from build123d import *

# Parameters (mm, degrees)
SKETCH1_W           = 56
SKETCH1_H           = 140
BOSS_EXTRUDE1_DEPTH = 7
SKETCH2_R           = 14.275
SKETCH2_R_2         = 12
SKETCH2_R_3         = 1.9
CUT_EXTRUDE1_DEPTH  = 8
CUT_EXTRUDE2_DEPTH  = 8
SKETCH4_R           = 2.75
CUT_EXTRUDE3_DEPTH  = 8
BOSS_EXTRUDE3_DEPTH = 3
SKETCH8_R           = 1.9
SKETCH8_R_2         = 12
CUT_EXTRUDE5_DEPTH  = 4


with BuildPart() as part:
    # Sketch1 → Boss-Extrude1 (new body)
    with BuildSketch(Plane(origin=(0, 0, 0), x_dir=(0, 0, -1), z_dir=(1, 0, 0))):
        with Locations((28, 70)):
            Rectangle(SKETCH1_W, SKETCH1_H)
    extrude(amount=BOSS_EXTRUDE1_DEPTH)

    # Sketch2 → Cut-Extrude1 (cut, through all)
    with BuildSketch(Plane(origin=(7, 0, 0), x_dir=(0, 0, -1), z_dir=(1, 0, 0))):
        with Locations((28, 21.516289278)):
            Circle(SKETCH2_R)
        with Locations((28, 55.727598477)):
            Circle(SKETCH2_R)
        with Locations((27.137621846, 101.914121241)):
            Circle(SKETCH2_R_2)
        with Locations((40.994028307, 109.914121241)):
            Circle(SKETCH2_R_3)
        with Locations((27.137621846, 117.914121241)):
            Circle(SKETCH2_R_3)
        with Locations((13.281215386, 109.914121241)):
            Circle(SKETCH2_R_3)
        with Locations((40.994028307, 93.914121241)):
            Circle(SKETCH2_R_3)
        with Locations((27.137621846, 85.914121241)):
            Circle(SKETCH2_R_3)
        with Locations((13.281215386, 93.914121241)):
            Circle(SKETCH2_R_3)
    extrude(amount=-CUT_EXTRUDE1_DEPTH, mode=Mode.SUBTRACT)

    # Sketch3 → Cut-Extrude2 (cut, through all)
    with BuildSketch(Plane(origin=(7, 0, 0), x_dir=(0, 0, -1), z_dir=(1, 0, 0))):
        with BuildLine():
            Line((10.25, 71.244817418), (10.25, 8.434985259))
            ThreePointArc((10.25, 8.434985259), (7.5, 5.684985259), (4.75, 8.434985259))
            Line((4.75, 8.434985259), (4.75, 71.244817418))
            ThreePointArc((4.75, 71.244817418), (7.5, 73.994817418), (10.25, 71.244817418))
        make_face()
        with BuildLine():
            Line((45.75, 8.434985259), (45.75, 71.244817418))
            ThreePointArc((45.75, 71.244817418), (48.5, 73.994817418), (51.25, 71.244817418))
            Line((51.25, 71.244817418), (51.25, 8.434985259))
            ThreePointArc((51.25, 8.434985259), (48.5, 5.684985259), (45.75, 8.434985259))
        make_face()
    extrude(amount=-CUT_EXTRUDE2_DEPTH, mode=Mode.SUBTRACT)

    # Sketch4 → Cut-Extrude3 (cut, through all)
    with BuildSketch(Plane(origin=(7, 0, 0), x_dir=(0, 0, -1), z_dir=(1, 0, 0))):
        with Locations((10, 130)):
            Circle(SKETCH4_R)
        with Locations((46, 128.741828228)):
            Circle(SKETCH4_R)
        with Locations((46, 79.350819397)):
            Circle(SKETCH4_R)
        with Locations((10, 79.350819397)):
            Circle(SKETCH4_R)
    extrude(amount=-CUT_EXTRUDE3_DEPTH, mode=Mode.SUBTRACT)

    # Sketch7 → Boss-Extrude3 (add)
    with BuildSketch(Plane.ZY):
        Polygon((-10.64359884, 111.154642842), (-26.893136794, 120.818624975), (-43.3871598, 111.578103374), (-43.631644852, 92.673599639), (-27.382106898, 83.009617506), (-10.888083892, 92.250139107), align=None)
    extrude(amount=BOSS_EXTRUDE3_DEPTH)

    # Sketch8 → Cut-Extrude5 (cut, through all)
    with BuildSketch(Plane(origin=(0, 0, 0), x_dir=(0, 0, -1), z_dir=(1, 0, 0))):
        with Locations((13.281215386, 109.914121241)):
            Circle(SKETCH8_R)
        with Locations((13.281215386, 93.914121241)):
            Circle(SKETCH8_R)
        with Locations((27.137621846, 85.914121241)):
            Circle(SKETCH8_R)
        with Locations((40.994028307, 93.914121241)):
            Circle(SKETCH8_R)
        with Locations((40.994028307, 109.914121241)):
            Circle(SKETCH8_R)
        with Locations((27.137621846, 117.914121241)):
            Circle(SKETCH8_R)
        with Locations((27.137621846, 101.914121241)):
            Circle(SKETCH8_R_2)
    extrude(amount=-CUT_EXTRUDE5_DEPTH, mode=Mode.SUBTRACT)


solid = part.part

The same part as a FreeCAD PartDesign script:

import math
import FreeCAD as App
import Part
import Sketcher
from FreeCAD import Vector
Q = App.Units.Quantity

doc = App.newDocument("Part")
params = doc.addObject("Spreadsheet::Sheet", "Params")
for row, (alias, value) in enumerate([
    ("sketch1_width", "140 mm"),
    ("sketch1_height", "56 mm"),
    ("pad1_length", "7 mm"),
    ("sketch2_diameter", "24 mm"),
    ("sketch2_diameter2", "3.8 mm"),
    ("sketch2_diameter3", "28.55 mm"),
    ("sketch3_radius", "2.75 mm"),
    ("sketch4_diameter", "5.5 mm"),
    ("pad2_length", "3 mm"),
    ("sketch6_diameter", "24 mm"),
    ("sketch6_diameter2", "3.8 mm"),
], start=1):
    params.set(f"A{row}", alias)
    params.set(f"B{row}", "=" + value)
    params.setAlias(f"B{row}", alias)

body = doc.addObject("PartDesign::Body", "Body")

sketch1 = body.newObject("Sketcher::SketchObject", "Sketch")
sketch1.AttachmentSupport = (doc.getObject("YZ_Plane"), [""])
sketch1.MapMode = "FlatFace"
sketch1.addGeometry(Part.LineSegment(Vector(140, 0, 0), Vector(0, 0, 0)), False)
sketch1.addGeometry(Part.LineSegment(Vector(0, 0, 0), Vector(0, -56, 0)), False)
sketch1.addGeometry(Part.LineSegment(Vector(0, -56, 0), Vector(140, -56, 0)), False)
sketch1.addGeometry(Part.LineSegment(Vector(140, -56, 0), Vector(140, 0, 0)), False)
sketch1.addConstraint(Sketcher.Constraint("Coincident", 0, 2, 1, 1))
sketch1.addConstraint(Sketcher.Constraint("Coincident", 1, 2, 2, 1))
sketch1.addConstraint(Sketcher.Constraint("Coincident", 2, 2, 3, 1))
sketch1.addConstraint(Sketcher.Constraint("Coincident", 3, 2, 0, 1))
sketch1.addConstraint(Sketcher.Constraint("Horizontal", 0))
sketch1.addConstraint(Sketcher.Constraint("Vertical", 1))
sketch1.addConstraint(Sketcher.Constraint("Horizontal", 2))
sketch1.addConstraint(Sketcher.Constraint("Vertical", 3))
sketch1.addConstraint(Sketcher.Constraint("Coincident", 0, 2, -1, 1))
sketch1.addConstraint(Sketcher.Constraint("DistanceX", 0, 2, 0, 1, Q("140 mm")))
sketch1.addConstraint(Sketcher.Constraint("DistanceY", 1, 2, 1, 1, Q("56 mm")))
sketch1.setExpression("Constraints[9]", "Params.sketch1_width")
sketch1.setExpression("Constraints[10]", "Params.sketch1_height")
pad1 = body.newObject("PartDesign::Pad", "Pad")
pad1.Profile = sketch1
pad1.setExpression("Length", "Params.pad1_length")

sketch2 = body.newObject("Sketcher::SketchObject", "Sketch001")
sketch2.AttachmentSupport = (doc.getObject("YZ_Plane"), [""])
sketch2.MapMode = "FlatFace"
sketch2.AttachmentOffset = App.Placement(Vector(0, 0, 7), App.Rotation())
sketch2.addGeometry(Part.Circle(Vector(21.5, -28, 0), Vector(0, 0, 1), 14.3), False)
sketch2.addGeometry(Part.Circle(Vector(55.7, -28, 0), Vector(0, 0, 1), 14.3), False)
sketch2.addGeometry(Part.Circle(Vector(101.9, -27.1, 0), Vector(0, 0, 1), 12), False)
sketch2.addGeometry(Part.Circle(Vector(109.9, -41, 0), Vector(0, 0, 1), 1.9), False)
sketch2.addGeometry(Part.Circle(Vector(117.9, -27.1, 0), Vector(0, 0, 1), 1.9), False)
sketch2.addGeometry(Part.Circle(Vector(109.9, -13.3, 0), Vector(0, 0, 1), 1.9), False)
sketch2.addGeometry(Part.Circle(Vector(93.9, -41, 0), Vector(0, 0, 1), 1.9), False)
sketch2.addGeometry(Part.Circle(Vector(85.9, -27.1, 0), Vector(0, 0, 1), 1.9), False)
sketch2.addGeometry(Part.Circle(Vector(93.9, -13.3, 0), Vector(0, 0, 1), 1.9), False)
sketch2.addConstraint(Sketcher.Constraint("Equal", 0, 1))
sketch2.addConstraint(Sketcher.Constraint("Equal", 3, 4))
sketch2.addConstraint(Sketcher.Constraint("Equal", 4, 5))
sketch2.addConstraint(Sketcher.Constraint("Equal", 5, 6))
sketch2.addConstraint(Sketcher.Constraint("Equal", 6, 7))
sketch2.addConstraint(Sketcher.Constraint("Equal", 7, 8))
sketch2.addConstraint(Sketcher.Constraint("Horizontal", 0, 3, 1, 3))
sketch2.addConstraint(Sketcher.Constraint("Horizontal", 2, 3, 4, 3))
sketch2.addConstraint(Sketcher.Constraint("Horizontal", 3, 3, 6, 3))
sketch2.addConstraint(Sketcher.Constraint("Horizontal", 4, 3, 7, 3))
sketch2.addConstraint(Sketcher.Constraint("Horizontal", 5, 3, 8, 3))
sketch2.addConstraint(Sketcher.Constraint("Vertical", 3, 3, 5, 3))
sketch2.addConstraint(Sketcher.Constraint("Vertical", 6, 3, 8, 3))
sketch2.addConstraint(Sketcher.Constraint("Diameter", 2, Q("24 mm")))
sketch2.addConstraint(Sketcher.Constraint("Diameter", 3, Q("3.8 mm")))
sketch2.addConstraint(Sketcher.Constraint("Diameter", 0, Q("28.55 mm")))
sketch2.addConstraint(Sketcher.Constraint("DistanceY", 0, 3, -1, 1, Q("28 mm")))
sketch2.addConstraint(Sketcher.Constraint("DistanceX", 2, 3, 3, 3, Q("8 mm")))
sketch2.addConstraint(Sketcher.Constraint("DistanceX", 2, 3, 4, 3, Q("16 mm")))
sketch2.addConstraint(Sketcher.Constraint("DistanceX", 6, 3, 3, 3, Q("16 mm")))
sketch2.addConstraint(Sketcher.Constraint("DistanceX", 7, 3, 2, 3, Q("16 mm")))
sketch2.addConstraint(Sketcher.Constraint("DistanceX", -1, 1, 1, 3, Q("55.727598 mm")))
sketch2.addConstraint(Sketcher.Constraint("DistanceX", -1, 1, 0, 3, Q("21.516289 mm")))
sketch2.addConstraint(Sketcher.Constraint("DistanceX", -1, 1, 2, 3, Q("101.914121 mm")))
sketch2.addConstraint(Sketcher.Constraint("DistanceY", 2, 3, -1, 1, Q("27.137622 mm")))
sketch2.addConstraint(Sketcher.Constraint("DistanceY", 3, 3, -1, 1, Q("40.994028 mm")))
sketch2.addConstraint(Sketcher.Constraint("DistanceY", 5, 3, -1, 1, Q("13.281215 mm")))
sketch2.setExpression("Constraints[13]", "Params.sketch2_diameter")
sketch2.setExpression("Constraints[14]", "Params.sketch2_diameter2")
sketch2.setExpression("Constraints[15]", "Params.sketch2_diameter3")
pocket1 = body.newObject("PartDesign::Pocket", "Pocket")
pocket1.Profile = sketch2
pocket1.Type = "ThroughAll"

sketch3 = body.newObject("Sketcher::SketchObject", "Sketch002")
sketch3.AttachmentSupport = (doc.getObject("YZ_Plane"), [""])
sketch3.MapMode = "FlatFace"
sketch3.AttachmentOffset = App.Placement(Vector(0, 0, 7), App.Rotation())
sketch3.addGeometry(Part.LineSegment(Vector(8.4, -10.2, 0), Vector(71.2, -10.2, 0)), False)
sketch3.addGeometry(Part.ArcOfCircle(Part.Circle(Vector(71.2, -7.5, 0), Vector(0, 0, 1), 2.8), math.radians(-90), math.radians(90)), False)
sketch3.addGeometry(Part.LineSegment(Vector(71.2, -4.8, 0), Vector(8.4, -4.8, 0)), False)
sketch3.addGeometry(Part.ArcOfCircle(Part.Circle(Vector(8.4, -7.5, 0), Vector(0, 0, 1), 2.8), math.radians(90), math.radians(270)), False)
sketch3.addGeometry(Part.LineSegment(Vector(71.2, -45.8, 0), Vector(8.4, -45.8, 0)), False)
sketch3.addGeometry(Part.ArcOfCircle(Part.Circle(Vector(8.4, -48.5, 0), Vector(0, 0, 1), 2.8), math.radians(90), math.radians(270)), False)
sketch3.addGeometry(Part.LineSegment(Vector(8.4, -51.2, 0), Vector(71.2, -51.2, 0)), False)
sketch3.addGeometry(Part.ArcOfCircle(Part.Circle(Vector(71.2, -48.5, 0), Vector(0, 0, 1), 2.8), math.radians(-90), math.radians(90)), False)
sketch3.addConstraint(Sketcher.Constraint("Tangent", 0, 2, 1, 1))
sketch3.addConstraint(Sketcher.Constraint("Tangent", 1, 2, 2, 1))
sketch3.addConstraint(Sketcher.Constraint("Tangent", 2, 2, 3, 1))
sketch3.addConstraint(Sketcher.Constraint("Tangent", 3, 2, 0, 1))
sketch3.addConstraint(Sketcher.Constraint("Tangent", 4, 2, 5, 1))
sketch3.addConstraint(Sketcher.Constraint("Tangent", 5, 2, 6, 1))
sketch3.addConstraint(Sketcher.Constraint("Tangent", 6, 2, 7, 1))
sketch3.addConstraint(Sketcher.Constraint("Tangent", 7, 2, 4, 1))
sketch3.addConstraint(Sketcher.Constraint("Horizontal", 0))
sketch3.addConstraint(Sketcher.Constraint("Horizontal", 2))
sketch3.addConstraint(Sketcher.Constraint("Horizontal", 4))
sketch3.addConstraint(Sketcher.Constraint("Horizontal", 6))
sketch3.addConstraint(Sketcher.Constraint("Equal", 3, 5))
sketch3.addConstraint(Sketcher.Constraint("Vertical", 3, 3, 5, 3))
sketch3.addConstraint(Sketcher.Constraint("Vertical", 1, 3, 7, 3))
sketch3.addConstraint(Sketcher.Constraint("Radius", 1, Q("2.75 mm")))
sketch3.addConstraint(Sketcher.Constraint("DistanceY", 5, 3, 3, 3, Q("41 mm")))
sketch3.addConstraint(Sketcher.Constraint("DistanceY", 1, 3, -1, 1, Q("7.5 mm")))
sketch3.addConstraint(Sketcher.Constraint("DistanceX", 0, 1, 0, 2, Q("62.809832 mm")))
sketch3.addConstraint(Sketcher.Constraint("DistanceX", -1, 1, 1, 3, Q("71.244817 mm")))
sketch3.setExpression("Constraints[15]", "Params.sketch3_radius")
pocket2 = body.newObject("PartDesign::Pocket", "Pocket001")
pocket2.Profile = sketch3
pocket2.Type = "ThroughAll"

sketch4 = body.newObject("Sketcher::SketchObject", "Sketch003")
sketch4.AttachmentSupport = (doc.getObject("YZ_Plane"), [""])
sketch4.MapMode = "FlatFace"
sketch4.AttachmentOffset = App.Placement(Vector(0, 0, 7), App.Rotation())
sketch4.addGeometry(Part.Circle(Vector(130, -10, 0), Vector(0, 0, 1), 2.8), False)
sketch4.addGeometry(Part.Circle(Vector(128.7, -46, 0), Vector(0, 0, 1), 2.8), False)
sketch4.addGeometry(Part.Circle(Vector(79.4, -46, 0), Vector(0, 0, 1), 2.8), False)
sketch4.addGeometry(Part.Circle(Vector(79.4, -10, 0), Vector(0, 0, 1), 2.8), False)
sketch4.addConstraint(Sketcher.Constraint("Equal", 0, 1))
sketch4.addConstraint(Sketcher.Constraint("Equal", 1, 2))
sketch4.addConstraint(Sketcher.Constraint("Equal", 2, 3))
sketch4.addConstraint(Sketcher.Constraint("Horizontal", 1, 3, 2, 3))
sketch4.addConstraint(Sketcher.Constraint("Horizontal", 0, 3, 3, 3))
sketch4.addConstraint(Sketcher.Constraint("Vertical", 2, 3, 3, 3))
sketch4.addConstraint(Sketcher.Constraint("Diameter", 0, Q("5.5 mm")))
sketch4.addConstraint(Sketcher.Constraint("DistanceX", -1, 1, 0, 3, Q("130 mm")))
sketch4.addConstraint(Sketcher.Constraint("DistanceY", 0, 3, -1, 1, Q("10 mm")))
sketch4.addConstraint(Sketcher.Constraint("DistanceY", 1, 3, -1, 1, Q("46 mm")))
sketch4.addConstraint(Sketcher.Constraint("DistanceX", -1, 1, 1, 3, Q("128.741828 mm")))
sketch4.addConstraint(Sketcher.Constraint("DistanceX", -1, 1, 2, 3, Q("79.350819 mm")))
sketch4.setExpression("Constraints[6]", "Params.sketch4_diameter")
pocket3 = body.newObject("PartDesign::Pocket", "Pocket002")
pocket3.Profile = sketch4
pocket3.Type = "ThroughAll"

sketch5 = body.newObject("Sketcher::SketchObject", "Sketch004")
sketch5.AttachmentSupport = (doc.getObject("YZ_Plane"), [""])
sketch5.MapMode = "FlatFace"
sketch5.addGeometry(Part.LineSegment(Vector(111, -11, 0), Vector(121, -27, 0)), False)
sketch5.addGeometry(Part.LineSegment(Vector(121, -27, 0), Vector(112, -43, 0)), False)
sketch5.addGeometry(Part.LineSegment(Vector(112, -43, 0), Vector(93, -44, 0)), False)
sketch5.addGeometry(Part.LineSegment(Vector(93, -44, 0), Vector(83, -27, 0)), False)
sketch5.addGeometry(Part.LineSegment(Vector(83, -27, 0), Vector(92, -11, 0)), False)
sketch5.addGeometry(Part.LineSegment(Vector(92, -11, 0), Vector(111, -11, 0)), False)
sketch5.addConstraint(Sketcher.Constraint("Coincident", 0, 2, 1, 1))
sketch5.addConstraint(Sketcher.Constraint("Coincident", 1, 2, 2, 1))
sketch5.addConstraint(Sketcher.Constraint("Coincident", 2, 2, 3, 1))
sketch5.addConstraint(Sketcher.Constraint("Coincident", 3, 2, 4, 1))
sketch5.addConstraint(Sketcher.Constraint("Coincident", 4, 2, 5, 1))
sketch5.addConstraint(Sketcher.Constraint("Coincident", 5, 2, 0, 1))
sketch5.addConstraint(Sketcher.Constraint("Parallel", 0, 3))
sketch5.addConstraint(Sketcher.Constraint("Parallel", 1, 4))
sketch5.addConstraint(Sketcher.Constraint("Parallel", 2, 5))
sketch5.addConstraint(Sketcher.Constraint("Equal", 0, 1))
sketch5.addConstraint(Sketcher.Constraint("Equal", 1, 2))
sketch5.addConstraint(Sketcher.Constraint("Equal", 2, 3))
sketch5.addConstraint(Sketcher.Constraint("DistanceX", -1, 1, 2, 2, Q("92.6736 mm")))
sketch5.addConstraint(Sketcher.Constraint("DistanceY", 5, 2, -1, 1, Q("10.643599 mm")))
sketch5.addConstraint(Sketcher.Constraint("DistanceY", 1, 2, -1, 1, Q("43.38716 mm")))
sketch5.addConstraint(Sketcher.Constraint("DistanceX", -1, 1, 4, 2, Q("92.250139 mm")))
sketch5.addConstraint(Sketcher.Constraint("DistanceX", 1, 2, 0, 2, Q("9.240522 mm")))
sketch5.addConstraint(Sketcher.Constraint("DistanceY", 2, 2, 0, 2, Q("16.738508 mm")))
pad2 = body.newObject("PartDesign::Pad", "Pad001")
pad2.Profile = sketch5
pad2.setExpression("Length", "Params.pad2_length")
pad2.Reversed = True

sketch6 = body.newObject("Sketcher::SketchObject", "Sketch005")
sketch6.AttachmentSupport = (doc.getObject("YZ_Plane"), [""])
sketch6.MapMode = "FlatFace"
sketch6.addGeometry(Part.Circle(Vector(109.9, -13.3, 0), Vector(0, 0, 1), 1.9), False)
sketch6.addGeometry(Part.Circle(Vector(93.9, -13.3, 0), Vector(0, 0, 1), 1.9), False)
sketch6.addGeometry(Part.Circle(Vector(85.9, -27.1, 0), Vector(0, 0, 1), 1.9), False)
sketch6.addGeometry(Part.Circle(Vector(93.9, -41, 0), Vector(0, 0, 1), 1.9), False)
sketch6.addGeometry(Part.Circle(Vector(109.9, -41, 0), Vector(0, 0, 1), 1.9), False)
sketch6.addGeometry(Part.Circle(Vector(117.9, -27.1, 0), Vector(0, 0, 1), 1.9), False)
sketch6.addGeometry(Part.Circle(Vector(101.9, -27.1, 0), Vector(0, 0, 1), 12), False)
sketch6.addConstraint(Sketcher.Constraint("Equal", 0, 1))
sketch6.addConstraint(Sketcher.Constraint("Equal", 1, 2))
sketch6.addConstraint(Sketcher.Constraint("Equal", 2, 3))
sketch6.addConstraint(Sketcher.Constraint("Equal", 3, 4))
sketch6.addConstraint(Sketcher.Constraint("Equal", 4, 5))
sketch6.addConstraint(Sketcher.Constraint("Horizontal", 0, 3, 1, 3))
sketch6.addConstraint(Sketcher.Constraint("Horizontal", 3, 3, 4, 3))
sketch6.addConstraint(Sketcher.Constraint("Horizontal", 2, 3, 5, 3))
sketch6.addConstraint(Sketcher.Constraint("Horizontal", 5, 3, 6, 3))
sketch6.addConstraint(Sketcher.Constraint("Vertical", 1, 3, 3, 3))
sketch6.addConstraint(Sketcher.Constraint("Vertical", 0, 3, 4, 3))
sketch6.addConstraint(Sketcher.Constraint("Diameter", 6, Q("24 mm")))
sketch6.addConstraint(Sketcher.Constraint("Diameter", 0, Q("3.8 mm")))
sketch6.addConstraint(Sketcher.Constraint("DistanceX", 1, 3, 0, 3, Q("16 mm")))
sketch6.addConstraint(Sketcher.Constraint("DistanceX", 2, 3, 1, 3, Q("8 mm")))
sketch6.addConstraint(Sketcher.Constraint("DistanceX", 0, 3, 5, 3, Q("8 mm")))
sketch6.addConstraint(Sketcher.Constraint("DistanceX", 6, 3, 0, 3, Q("8 mm")))
sketch6.addConstraint(Sketcher.Constraint("DistanceX", -1, 1, 0, 3, Q("109.914121 mm")))
sketch6.addConstraint(Sketcher.Constraint("DistanceY", 2, 3, -1, 1, Q("27.137622 mm")))
sketch6.addConstraint(Sketcher.Constraint("DistanceY", 3, 3, -1, 1, Q("40.994028 mm")))
sketch6.addConstraint(Sketcher.Constraint("DistanceY", 0, 3, -1, 1, Q("13.281215 mm")))
sketch6.setExpression("Constraints[11]", "Params.sketch6_diameter")
sketch6.setExpression("Constraints[12]", "Params.sketch6_diameter2")
pocket4 = body.newObject("PartDesign::Pocket", "Pocket003")
pocket4.Profile = sketch6
pocket4.Type = "ThroughAll"

doc.recompute()
